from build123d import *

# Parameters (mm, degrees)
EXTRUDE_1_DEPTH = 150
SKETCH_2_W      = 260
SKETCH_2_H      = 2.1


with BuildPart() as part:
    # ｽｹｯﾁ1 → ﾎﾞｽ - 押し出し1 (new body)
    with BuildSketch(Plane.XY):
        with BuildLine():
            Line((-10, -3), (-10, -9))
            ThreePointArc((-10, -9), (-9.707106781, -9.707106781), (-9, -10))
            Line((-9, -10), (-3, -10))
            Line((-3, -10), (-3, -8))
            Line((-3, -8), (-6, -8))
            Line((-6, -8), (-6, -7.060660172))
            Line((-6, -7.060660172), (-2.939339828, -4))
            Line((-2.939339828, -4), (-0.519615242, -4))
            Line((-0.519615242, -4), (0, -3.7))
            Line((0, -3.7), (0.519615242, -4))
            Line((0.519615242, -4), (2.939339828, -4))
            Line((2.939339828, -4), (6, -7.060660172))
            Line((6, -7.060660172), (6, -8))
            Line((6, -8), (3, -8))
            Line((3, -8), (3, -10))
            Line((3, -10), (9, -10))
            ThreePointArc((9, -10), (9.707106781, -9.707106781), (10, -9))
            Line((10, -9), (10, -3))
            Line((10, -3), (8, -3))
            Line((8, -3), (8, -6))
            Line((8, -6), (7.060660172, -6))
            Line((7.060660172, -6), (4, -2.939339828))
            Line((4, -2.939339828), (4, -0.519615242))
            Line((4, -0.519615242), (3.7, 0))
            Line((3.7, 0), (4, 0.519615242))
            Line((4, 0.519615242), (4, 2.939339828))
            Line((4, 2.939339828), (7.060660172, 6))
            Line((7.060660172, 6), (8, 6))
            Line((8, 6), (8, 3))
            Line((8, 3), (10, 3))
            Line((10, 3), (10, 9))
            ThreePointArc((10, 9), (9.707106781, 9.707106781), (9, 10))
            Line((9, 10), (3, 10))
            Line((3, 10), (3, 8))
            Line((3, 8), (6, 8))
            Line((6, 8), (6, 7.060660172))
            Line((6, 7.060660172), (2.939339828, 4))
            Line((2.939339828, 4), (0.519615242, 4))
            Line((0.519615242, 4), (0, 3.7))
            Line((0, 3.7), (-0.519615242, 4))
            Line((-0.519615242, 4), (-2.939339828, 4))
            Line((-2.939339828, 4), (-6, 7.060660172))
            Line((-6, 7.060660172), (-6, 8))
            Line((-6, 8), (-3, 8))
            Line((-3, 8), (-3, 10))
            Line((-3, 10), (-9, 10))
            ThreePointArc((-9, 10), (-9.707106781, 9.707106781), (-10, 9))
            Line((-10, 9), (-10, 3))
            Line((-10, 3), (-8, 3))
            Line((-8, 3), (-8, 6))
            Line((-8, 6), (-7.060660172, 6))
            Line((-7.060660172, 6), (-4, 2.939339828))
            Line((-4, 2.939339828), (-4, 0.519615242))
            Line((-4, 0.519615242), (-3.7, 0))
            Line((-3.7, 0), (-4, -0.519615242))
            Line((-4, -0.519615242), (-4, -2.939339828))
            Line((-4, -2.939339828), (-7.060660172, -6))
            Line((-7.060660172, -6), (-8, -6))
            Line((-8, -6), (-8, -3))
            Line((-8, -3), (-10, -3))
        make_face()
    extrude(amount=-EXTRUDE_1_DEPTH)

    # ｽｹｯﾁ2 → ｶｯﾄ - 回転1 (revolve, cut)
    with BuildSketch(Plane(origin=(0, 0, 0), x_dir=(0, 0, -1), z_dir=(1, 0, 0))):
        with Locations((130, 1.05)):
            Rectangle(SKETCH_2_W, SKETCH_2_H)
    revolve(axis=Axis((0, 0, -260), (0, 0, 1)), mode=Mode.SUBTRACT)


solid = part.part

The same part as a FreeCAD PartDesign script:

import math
import FreeCAD as App
import Part
import Sketcher
Q = App.Units.Quantity


def add_polygon(sketch, points):
    """Adds a closed chain of lines whose ends are joined by coincident constraints."""
    first, n = sketch.GeometryCount, len(points)
    for a, b in zip(points, points[1:] + points[:1]):
        sketch.addGeometry(Part.LineSegment(App.Vector(*a, 0), App.Vector(*b, 0)), False)
    for i in range(n):
        sketch.addConstraint(Sketcher.Constraint("Coincident", first + i, 2, first + (i + 1) % n, 1))

doc = App.newDocument("Part")
body = doc.addObject("PartDesign::Body", "Body")

# Sketch on XY plane
sketch1 = body.newObject("Sketcher::SketchObject", "Sketch")
sketch1.AttachmentSupport = (doc.getObject("XY_Plane"), [""])
sketch1.MapMode = "FlatFace"
sketch1.addGeometry([
    Part.LineSegment(App.Vector(-10, -3, 0), App.Vector(-10, -9, 0)),  # 0
    Part.ArcOfCircle(Part.Circle(App.Vector(-9, -9, 0), App.Vector(0, 0, 1), 1), math.radians(-180), math.radians(-90)),  # 1
    Part.LineSegment(App.Vector(-9, -10, 0), App.Vector(-3, -10, 0)),  # 2
    Part.LineSegment(App.Vector(-3, -10, 0), App.Vector(-3, -8, 0)),  # 3
    Part.LineSegment(App.Vector(-3, -8, 0), App.Vector(-6, -8, 0)),  # 4
    Part.LineSegment(App.Vector(-6, -8, 0), App.Vector(-6, -7.06066, 0)),  # 5
    Part.LineSegment(App.Vector(-6, -7.06066, 0), App.Vector(-2.93934, -4, 0)),  # 6
    Part.LineSegment(App.Vector(-2.93934, -4, 0), App.Vector(-0.519615, -4, 0)),  # 7
    Part.LineSegment(App.Vector(-0.519615, -4, 0), App.Vector(0, -3.7, 0)),  # 8
    Part.LineSegment(App.Vector(0, -3.7, 0), App.Vector(0.519615, -4, 0)),  # 9
    Part.LineSegment(App.Vector(0.519615, -4, 0), App.Vector(2.93934, -4, 0)),  # 10
    Part.LineSegment(App.Vector(2.93934, -4, 0), App.Vector(6, -7.06066, 0)),  # 11
    Part.LineSegment(App.Vector(6, -7.06066, 0), App.Vector(6, -8, 0)),  # 12
    Part.LineSegment(App.Vector(6, -8, 0), App.Vector(3, -8, 0)),  # 13
    Part.LineSegment(App.Vector(3, -8, 0), App.Vector(3, -10, 0)),  # 14
    Part.LineSegment(App.Vector(3, -10, 0), App.Vector(9, -10, 0)),  # 15
    Part.ArcOfCircle(Part.Circle(App.Vector(9, -9, 0), App.Vector(0, 0, 1), 1), math.radians(-90), math.radians(0)),  # 16
    Part.LineSegment(App.Vector(10, -9, 0), App.Vector(10, -3, 0)),  # 17
    Part.LineSegment(App.Vector(10, -3, 0), App.Vector(8, -3, 0)),  # 18
    Part.LineSegment(App.Vector(8, -3, 0), App.Vector(8, -6, 0)),  # 19
    Part.LineSegment(App.Vector(8, -6, 0), App.Vector(7.06066, -6, 0)),  # 20
    Part.LineSegment(App.Vector(7.06066, -6, 0), App.Vector(4, -2.93934, 0)),  # 21
    Part.LineSegment(App.Vector(4, -2.93934, 0), App.Vector(4, -0.519615, 0)),  # 22
    Part.LineSegment(App.Vector(4, -0.519615, 0), App.Vector(3.7, 0, 0)),  # 23
    Part.LineSegment(App.Vector(3.7, 0, 0), App.Vector(4, 0.519615, 0)),  # 24
    Part.LineSegment(App.Vector(4, 0.519615, 0), App.Vector(4, 2.93934, 0)),  # 25
    Part.LineSegment(App.Vector(4, 2.93934, 0), App.Vector(7.06066, 6, 0)),  # 26
    Part.LineSegment(App.Vector(7.06066, 6, 0), App.Vector(8, 6, 0)),  # 27
    Part.LineSegment(App.Vector(8, 6, 0), App.Vector(8, 3, 0)),  # 28
    Part.LineSegment(App.Vector(8, 3, 0), App.Vector(10, 3, 0)),  # 29
    Part.LineSegment(App.Vector(10, 3, 0), App.Vector(10, 9, 0)),  # 30
    Part.ArcOfCircle(Part.Circle(App.Vector(9, 9, 0), App.Vector(0, 0, 1), 1), math.radians(0), math.radians(90)),  # 31
    Part.LineSegment(App.Vector(9, 10, 0), App.Vector(3, 10, 0)),  # 32
    Part.LineSegment(App.Vector(3, 10, 0), App.Vector(3, 8, 0)),  # 33
    Part.LineSegment(App.Vector(3, 8, 0), App.Vector(6, 8, 0)),  # 34
    Part.LineSegment(App.Vector(6, 8, 0), App.Vector(6, 7.06066, 0)),  # 35
    Part.LineSegment(App.Vector(6, 7.06066, 0), App.Vector(2.93934, 4, 0)),  # 36
    Part.LineSegment(App.Vector(2.93934, 4, 0), App.Vector(0.519615, 4, 0)),  # 37
    Part.LineSegment(App.Vector(0.519615, 4, 0), App.Vector(0, 3.7, 0)),  # 38
    Part.LineSegment(App.Vector(0, 3.7, 0), App.Vector(-0.519615, 4, 0)),  # 39
    Part.LineSegment(App.Vector(-0.519615, 4, 0), App.Vector(-2.93934, 4, 0)),  # 40
    Part.LineSegment(App.Vector(-2.93934, 4, 0), App.Vector(-6, 7.06066, 0)),  # 41
    Part.LineSegment(App.Vector(-6, 7.06066, 0), App.Vector(-6, 8, 0)),  # 42
    Part.LineSegment(App.Vector(-6, 8, 0), App.Vector(-3, 8, 0)),  # 43
    Part.LineSegment(App.Vector(-3, 8, 0), App.Vector(-3, 10, 0)),  # 44
    Part.LineSegment(App.Vector(-3, 10, 0), App.Vector(-9, 10, 0)),  # 45
    Part.ArcOfCircle(Part.Circle(App.Vector(-9, 9, 0), App.Vector(0, 0, 1), 1), math.radians(90), math.radians(180)),  # 46
    Part.LineSegment(App.Vector(-10, 9, 0), App.Vector(-10, 3, 0)),  # 47
    Part.LineSegment(App.Vector(-10, 3, 0), App.Vector(-8, 3, 0)),  # 48
    Part.LineSegment(App.Vector(-8, 3, 0), App.Vector(-8, 6, 0)),  # 49
    Part.LineSegment(App.Vector(-8, 6, 0), App.Vector(-7.06066, 6, 0)),  # 50
    Part.LineSegment(App.Vector(-7.06066, 6, 0), App.Vector(-4, 2.93934, 0)),  # 51
    Part.LineSegment(App.Vector(-4, 2.93934, 0), App.Vector(-4, 0.519615, 0)),  # 52
    Part.LineSegment(App.Vector(-4, 0.519615, 0), App.Vector(-3.7, 0, 0)),  # 53
    Part.LineSegment(App.Vector(-3.7, 0, 0), App.Vector(-4, -0.519615, 0)),  # 54
    Part.LineSegment(App.Vector(-4, -0.519615, 0), App.Vector(-4, -2.93934, 0)),  # 55
    Part.LineSegment(App.Vector(-4, -2.93934, 0), App.Vector(-7.06066, -6, 0)),  # 56
    Part.LineSegment(App.Vector(-7.06066, -6, 0), App.Vector(-8, -6, 0)),  # 57
    Part.LineSegment(App.Vector(-8, -6, 0), App.Vector(-8, -3, 0)),  # 58
    Part.LineSegment(App.Vector(-8, -3, 0), App.Vector(-10, -3, 0)),  # 59
], False)
sketch1.addConstraint([
    Sketcher.Constraint("Tangent", 0, 2, 1, 1),
    Sketcher.Constraint("Tangent", 1, 2, 2, 1),
    Sketcher.Constraint("Coincident", 2, 2, 3, 1),
    Sketcher.Constraint("Coincident", 3, 2, 4, 1),
    Sketcher.Constraint("Coincident", 4, 2, 5, 1),
    Sketcher.Constraint("Coincident", 5, 2, 6, 1),
    Sketcher.Constraint("Coincident", 6, 2, 7, 1),
    Sketcher.Constraint("Coincident", 7, 2, 8, 1),
    Sketcher.Constraint("Coincident", 8, 2, 9, 1),
    Sketcher.Constraint("Coincident", 9, 2, 10, 1),
    Sketcher.Constraint("Coincident", 10, 2, 11, 1),
    Sketcher.Constraint("Coincident", 11, 2, 12, 1),
    Sketcher.Constraint("Coincident", 12, 2, 13, 1),
    Sketcher.Constraint("Coincident", 13, 2, 14, 1),
    Sketcher.Constraint("Coincident", 14, 2, 15, 1),
    Sketcher.Constraint("Tangent", 15, 2, 16, 1),
    Sketcher.Constraint("Tangent", 16, 2, 17, 1),
    Sketcher.Constraint("Coincident", 17, 2, 18, 1),
    Sketcher.Constraint("Coincident", 18, 2, 19, 1),
    Sketcher.Constraint("Coincident", 19, 2, 20, 1),
    Sketcher.Constraint("Coincident", 20, 2, 21, 1),
    Sketcher.Constraint("Coincident", 21, 2, 22, 1),
    Sketcher.Constraint("Coincident", 22, 2, 23, 1),
    Sketcher.Constraint("Coincident", 23, 2, 24, 1),
    Sketcher.Constraint("Coincident", 24, 2, 25, 1),
    Sketcher.Constraint("Coincident", 25, 2, 26, 1),
    Sketcher.Constraint("Coincident", 26, 2, 27, 1),
    Sketcher.Constraint("Coincident", 27, 2, 28, 1),
    Sketcher.Constraint("Coincident", 28, 2, 29, 1),
    Sketcher.Constraint("Coincident", 29, 2, 30, 1),
    Sketcher.Constraint("Tangent", 30, 2, 31, 1),
    Sketcher.Constraint("Tangent", 31, 2, 32, 1),
    Sketcher.Constraint("Coincident", 32, 2, 33, 1),
    Sketcher.Constraint("Coincident", 33, 2, 34, 1),
    Sketcher.Constraint("Coincident", 34, 2, 35, 1),
    Sketcher.Constraint("Coincident", 35, 2, 36, 1),
    Sketcher.Constraint("Coincident", 36, 2, 37, 1),
    Sketcher.Constraint("Coincident", 37, 2, 38, 1),
    Sketcher.Constraint("Coincident", 38, 2, 39, 1),
    Sketcher.Constraint("Coincident", 39, 2, 40, 1),
    Sketcher.Constraint("Coincident", 40, 2, 41, 1),
    Sketcher.Constraint("Coincident", 41, 2, 42, 1),
    Sketcher.Constraint("Coincident", 42, 2, 43, 1),
    Sketcher.Constraint("Coincident", 43, 2, 44, 1),
    Sketcher.Constraint("Coincident", 44, 2, 45, 1),
    Sketcher.Constraint("Tangent", 45, 2, 46, 1),
    Sketcher.Constraint("Tangent", 46, 2, 47, 1),
    Sketcher.Constraint("Coincident", 47, 2, 48, 1),
    Sketcher.Constraint("Coincident", 48, 2, 49, 1),
    Sketcher.Constraint("Coincident", 49, 2, 50, 1),
    Sketcher.Constraint("Coincident", 50, 2, 51, 1),
    Sketcher.Constraint("Coincident", 51, 2, 52, 1),
    Sketcher.Constraint("Coincident", 52, 2, 53, 1),
    Sketcher.Constraint("Coincident", 53, 2, 54, 1),
    Sketcher.Constraint("Coincident", 54, 2, 55, 1),
    Sketcher.Constraint("Coincident", 55, 2, 56, 1),
    Sketcher.Constraint("Coincident", 56, 2, 57, 1),
    Sketcher.Constraint("Coincident", 57, 2, 58, 1),
    Sketcher.Constraint("Coincident", 58, 2, 59, 1),
    Sketcher.Constraint("Coincident", 59, 2, 0, 1),
    Sketcher.Constraint("Vertical", 0),
    Sketcher.Constraint("Horizontal", 2),
    Sketcher.Constraint("Vertical", 3),
    Sketcher.Constraint("Horizontal", 4),
    Sketcher.Constraint("Vertical", 5),
    Sketcher.Constraint("Horizontal", 7),
    Sketcher.Constraint("Horizontal", 10),
    Sketcher.Constraint("Vertical", 12),
    Sketcher.Constraint("Horizontal", 13),
    Sketcher.Constraint("Vertical", 14),
    Sketcher.Constraint("Horizontal", 15),
    Sketcher.Constraint("Vertical", 17),
    Sketcher.Constraint("Horizontal", 18),
    Sketcher.Constraint("Vertical", 19),
    Sketcher.Constraint("Horizontal", 20),
    Sketcher.Constraint("Vertical", 22),
    Sketcher.Constraint("Vertical", 25),
    Sketcher.Constraint("Horizontal", 27),
    Sketcher.Constraint("Vertical", 28),
    Sketcher.Constraint("Horizontal", 29),
    Sketcher.Constraint("Vertical", 30),
    Sketcher.Constraint("Horizontal", 32),
    Sketcher.Constraint("Vertical", 33),
    Sketcher.Constraint("Horizontal", 34),
    Sketcher.Constraint("Vertical", 35),
    Sketcher.Constraint("Horizontal", 37),
    Sketcher.Constraint("Horizontal", 40),
    Sketcher.Constraint("Vertical", 42),
    Sketcher.Constraint("Horizontal", 43),
    Sketcher.Constraint("Vertical", 44),
    Sketcher.Constraint("Horizontal", 45),
    Sketcher.Constraint("Vertical", 47),
    Sketcher.Constraint("Horizontal", 48),
    Sketcher.Constraint("Vertical", 49),
    Sketcher.Constraint("Horizontal", 50),
    Sketcher.Constraint("Vertical", 52),
    Sketcher.Constraint("Vertical", 55),
    Sketcher.Constraint("Horizontal", 57),
    Sketcher.Constraint("Vertical", 58),
    Sketcher.Constraint("Horizontal", 59),
    Sketcher.Constraint("Equal", 1, 16),
    Sketcher.Constraint("Equal", 16, 31),
    Sketcher.Constraint("Equal", 31, 46),
    Sketcher.Constraint("Symmetric", 1, 3, 31, 3, -1, 1),
    Sketcher.Constraint("Symmetric", 16, 3, 46, 3, -1, 1),
    Sketcher.Constraint("Symmetric", 3, 2, 33, 2, -1, 1),
    Sketcher.Constraint("Symmetric", 5, 2, 35, 2, -1, 1),
    Sketcher.Constraint("Symmetric", 6, 2, 36, 2, -1, 1),
    Sketcher.Constraint("Symmetric", 8, 2, 38, 2, -1, 1),
    Sketcher.Constraint("Symmetric", 9, 2, 39, 2, -1, 1),
    Sketcher.Constraint("Symmetric", 11, 2, 41, 2, -1, 1),
    Sketcher.Constraint("Symmetric", 13, 2, 43, 2, -1, 1),
    Sketcher.Constraint("Symmetric", 18, 2, 48, 2, -1, 1),
    Sketcher.Constraint("Symmetric", 20, 2, 50, 2, -1, 1),
    Sketcher.Constraint("Symmetric", 21, 2, 51, 2, -1, 1),
    Sketcher.Constraint("Symmetric", 23, 2, 53, 2, -1, 1),
    Sketcher.Constraint("Symmetric", 24, 2, 54, 2, -1, 1),
    Sketcher.Constraint("Symmetric", 26, 2, 56, 2, -1, 1),
    Sketcher.Constraint("Symmetric", 28, 2, 58, 2, -1, 1),
    Sketcher.Constraint("Symmetric", 1, 3, 16, 3, -2),
    Sketcher.Constraint("Symmetric", 7, 2, 9, 2, -2),
    Sketcher.Constraint("Symmetric", 5, 2, 11, 2, -2),
    Sketcher.Constraint("Symmetric", 3, 2, 13, 2, -2),
    Sketcher.Constraint("Symmetric", 28, 2, 48, 2, -2),
    Sketcher.Constraint("Symmetric", 26, 2, 50, 2, -2),
    Sketcher.Constraint("Symmetric", 25, 2, 51, 2, -2),
    Sketcher.Constraint("PointOnObject", 8, 2, -2),
    Sketcher.Constraint("PointOnObject", 23, 2, -1),
    Sketcher.Constraint("Perpendicular", 6, 11),
    Sketcher.Constraint("Parallel", 11, 21),
    Sketcher.Constraint("Perpendicular", 8, 23),
    Sketcher.Constraint("Perpendicular", 9, 24),
    Sketcher.Constraint("Perpendicular", 21, 26),
    Sketcher.Constraint("Perpendicular", 23, 38),
    Sketcher.Constraint("Perpendicular", 36, 41),
    Sketcher.Constraint("Perpendicular", 38, 53),
    Sketcher.Constraint("Perpendicular", 51, 56),
    Sketcher.Constraint("Equal", 45, 0),
    Sketcher.Constraint("Equal", 59, 3),
    Sketcher.Constraint("Equal", 57, 5),
    Sketcher.Constraint("Equal", 43, 19),
    Sketcher.Constraint("Equal", 40, 22),
    Sketcher.Constraint("Equal", 11, 21),
    Sketcher.Constraint("Equal", 9, 23),
    Sketcher.Constraint("Radius", 1, Q("1 mm")),
    Sketcher.Constraint("DistanceX", 2, 1, 2, 2, Q("6 mm")),
    Sketcher.Constraint("DistanceX", 4, 2, 4, 1, Q("3 mm")),
    Sketcher.Constraint("DistanceX", 18, 2, 18, 1, Q("2 mm")),
    Sketcher.Constraint("Angle", 8, Q("30 deg")),
    Sketcher.Constraint("DistanceX", 1, 3, -1, 1, Q("9 mm")),
    Sketcher.Constraint("DistanceY", 6, 2, -1, 1, Q("4 mm")),
    Sketcher.Constraint("Distance", 8, Q("0.6 mm")),
    Sketcher.Constraint("DistanceX", 20, 2, 20, 1, Q("0.93934 mm")),
])
pad1 = body.newObject("PartDesign::Pad", "Pad")
pad1.Profile = sketch1
pad1.Length = 150
pad1.Reversed = True

# Sketch on YZ plane
sketch2 = body.newObject("Sketcher::SketchObject", "Sketch001")
sketch2.AttachmentSupport = (doc.getObject("YZ_Plane"), [""])
sketch2.MapMode = "FlatFace"
add_polygon(sketch2, [(2.1, 0), (0, 0), (0, -260), (2.1, -260)])  # lines 0-3
sketch2.addConstraint([
    Sketcher.Constraint("Horizontal", 0),
    Sketcher.Constraint("Vertical", 1),
    Sketcher.Constraint("Horizontal", 2),
    Sketcher.Constraint("Vertical", 3),
    Sketcher.Constraint("Coincident", 0, 2, -1, 1),
    Sketcher.Constraint("DistanceY", 1, 2, 1, 1, Q("260 mm")),
    Sketcher.Constraint("DistanceX", 0, 2, 0, 1, Q("2.1 mm")),
])
groove = body.newObject("PartDesign::Groove", "Groove")
groove.Profile = sketch2
groove.ReferenceAxis = (sketch2, ["V_Axis"])
groove.Angle = 360

doc.recompute()
